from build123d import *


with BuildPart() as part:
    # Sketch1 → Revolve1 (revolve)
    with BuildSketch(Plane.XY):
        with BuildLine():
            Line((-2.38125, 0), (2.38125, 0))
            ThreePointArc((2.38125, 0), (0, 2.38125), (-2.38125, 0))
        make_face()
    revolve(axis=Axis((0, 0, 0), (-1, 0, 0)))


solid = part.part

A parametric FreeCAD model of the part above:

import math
import FreeCAD as App
import Part
import Sketcher
Q = App.Units.Quantity

doc = App.newDocument("Part")
body = doc.addObject("PartDesign::Body", "Body")

sketch1 = body.newObject("Sketcher::SketchObject", "Sketch")
sketch1.AttachmentSupport = (doc.getObject("XY_Plane"), [""])
sketch1.MapMode = "FlatFace"
sketch1.addGeometry(Part.LineSegment(App.Vector(-2.4, 0, 0), App.Vector(2.4, 0, 0)), False)
sketch1.addGeometry(Part.ArcOfCircle(Part.Circle(App.Vector(0, 0, 0), App.Vector(0, 0, 1), 2.4), math.radians(0), math.radians(180)), False)
sketch1.addConstraint(Sketcher.Constraint("Coincident", 0, 1, 1, 2))
sketch1.addConstraint(Sketcher.Constraint("Coincident", 1, 1, 0, 2))
sketch1.addConstraint(Sketcher.Constraint("Horizontal", 0))
sketch1.addConstraint(Sketcher.Constraint("Coincident", 1, 3, -1, 1))
sketch1.addConstraint(Sketcher.Constraint("PointOnObject", 0, 1, -1))
sketch1.addConstraint(Sketcher.Constraint("Radius", 1, Q("0.09375 in")))
revolution = body.newObject("PartDesign::Revolution", "Revolution")
revolution.Profile = sketch1
revolution.ReferenceAxis = (sketch1, ["H_Axis"])
revolution.Angle = 360

doc.recompute()
